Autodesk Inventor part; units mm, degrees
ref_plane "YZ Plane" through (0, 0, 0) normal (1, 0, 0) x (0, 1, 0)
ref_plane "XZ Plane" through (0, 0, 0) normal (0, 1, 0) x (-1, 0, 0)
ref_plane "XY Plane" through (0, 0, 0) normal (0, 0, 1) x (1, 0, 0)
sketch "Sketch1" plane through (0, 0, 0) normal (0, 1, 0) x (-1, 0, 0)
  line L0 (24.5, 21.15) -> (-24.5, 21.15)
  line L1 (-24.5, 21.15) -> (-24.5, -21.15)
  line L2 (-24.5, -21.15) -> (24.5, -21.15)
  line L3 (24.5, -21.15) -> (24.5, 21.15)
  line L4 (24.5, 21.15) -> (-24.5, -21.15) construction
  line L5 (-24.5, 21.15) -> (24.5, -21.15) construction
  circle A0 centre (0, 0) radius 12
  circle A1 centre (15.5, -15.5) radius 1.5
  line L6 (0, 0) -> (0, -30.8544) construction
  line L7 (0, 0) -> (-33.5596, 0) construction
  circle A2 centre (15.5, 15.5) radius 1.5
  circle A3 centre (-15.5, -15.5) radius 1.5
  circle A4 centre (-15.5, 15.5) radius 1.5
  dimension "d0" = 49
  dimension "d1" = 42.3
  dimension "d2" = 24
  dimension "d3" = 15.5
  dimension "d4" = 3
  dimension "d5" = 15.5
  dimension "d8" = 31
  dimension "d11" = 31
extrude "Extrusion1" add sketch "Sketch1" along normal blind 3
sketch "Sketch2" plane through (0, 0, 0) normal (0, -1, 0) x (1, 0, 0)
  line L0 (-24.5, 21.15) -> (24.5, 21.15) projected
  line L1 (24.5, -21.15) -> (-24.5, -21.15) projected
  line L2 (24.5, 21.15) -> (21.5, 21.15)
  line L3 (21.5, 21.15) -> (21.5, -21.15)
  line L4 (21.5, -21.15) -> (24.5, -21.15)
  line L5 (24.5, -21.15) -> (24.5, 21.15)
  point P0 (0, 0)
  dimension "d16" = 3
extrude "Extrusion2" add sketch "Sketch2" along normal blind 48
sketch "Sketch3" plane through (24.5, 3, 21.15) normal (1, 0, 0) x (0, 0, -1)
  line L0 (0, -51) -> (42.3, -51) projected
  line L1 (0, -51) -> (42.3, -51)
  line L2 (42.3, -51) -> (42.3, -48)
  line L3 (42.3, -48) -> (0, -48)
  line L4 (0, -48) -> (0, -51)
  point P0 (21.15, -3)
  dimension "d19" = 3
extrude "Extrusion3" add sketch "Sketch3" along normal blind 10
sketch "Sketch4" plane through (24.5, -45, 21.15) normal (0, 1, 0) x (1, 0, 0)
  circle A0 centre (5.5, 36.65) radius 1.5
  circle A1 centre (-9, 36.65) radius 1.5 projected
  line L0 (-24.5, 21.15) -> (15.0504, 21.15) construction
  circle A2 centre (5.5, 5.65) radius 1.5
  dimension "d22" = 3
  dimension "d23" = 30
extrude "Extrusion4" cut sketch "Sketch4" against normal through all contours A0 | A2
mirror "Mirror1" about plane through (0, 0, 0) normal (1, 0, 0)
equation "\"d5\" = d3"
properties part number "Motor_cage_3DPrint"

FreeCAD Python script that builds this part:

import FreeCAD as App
import Part
import Sketcher
Q = App.Units.Quantity

doc = App.newDocument("Part")
params = doc.addObject("Spreadsheet::Sheet", "Params")
for row, (alias, value) in enumerate([
    ("sketch1_diameter", "3 mm"),
    ("sketch1_diameter2", "24 mm"),
    ("sketch1_width", "49 mm"),
    ("sketch1_height", "42.3 mm"),
    ("pad1_length", "3 mm"),
    ("sketch2_width", "3 mm"),
    ("sketch2_height", "42.3 mm"),
    ("pad2_length", "48 mm"),
    ("sketch3_width", "3 mm"),
    ("sketch3_height", "42.3 mm"),
    ("pad3_length", "10 mm"),
    ("sketch4_diameter", "3 mm"),
], start=1):
    params.set(f"A{row}", alias)
    params.set(f"B{row}", "=" + value)
    params.setAlias(f"B{row}", alias)

body = doc.addObject("PartDesign::Body", "Body")

# Sketch on XZ plane
sketch1 = body.newObject("Sketcher::SketchObject", "Sketch")
sketch1.AttachmentSupport = (doc.getObject("XZ_Plane"), [""])
sketch1.MapMode = "FlatFace"
sketch1.addGeometry([
    Part.LineSegment(App.Vector(-24.5, -21.15, 0), App.Vector(-24.5, 21.15, 0)),  # 0
    Part.LineSegment(App.Vector(-24.5, 21.15, 0), App.Vector(24.5, 21.15, 0)),  # 1
    Part.LineSegment(App.Vector(24.5, 21.15, 0), App.Vector(24.5, -21.15, 0)),  # 2
    Part.LineSegment(App.Vector(24.5, -21.15, 0), App.Vector(-24.5, -21.15, 0)),  # 3
    Part.Circle(App.Vector(15.5, -15.5, 0), App.Vector(0, 0, 1), 1.5),  # 4
    Part.Circle(App.Vector(-15.5, -15.5, 0), App.Vector(0, 0, 1), 1.5),  # 5
    Part.Circle(App.Vector(0, 0, 0), App.Vector(0, 0, 1), 12),  # 6
    Part.Circle(App.Vector(15.5, 15.5, 0), App.Vector(0, 0, 1), 1.5),  # 7
    Part.Circle(App.Vector(-15.5, 15.5, 0), App.Vector(0, 0, 1), 1.5),  # 8
], False)
sketch1.addConstraint([
    Sketcher.Constraint("Coincident", 0, 2, 1, 1),
    Sketcher.Constraint("Coincident", 1, 2, 2, 1),
    Sketcher.Constraint("Coincident", 2, 2, 3, 1),
    Sketcher.Constraint("Coincident", 3, 2, 0, 1),
    Sketcher.Constraint("Vertical", 0),
    Sketcher.Constraint("Horizontal", 1),
    Sketcher.Constraint("Vertical", 2),
    Sketcher.Constraint("Horizontal", 3),
    Sketcher.Constraint("Coincident", 6, 3, -1, 1),
    Sketcher.Constraint("Equal", 4, 5),
    Sketcher.Constraint("Equal", 5, 7),
    Sketcher.Constraint("Equal", 7, 8),
    Sketcher.Constraint("Symmetric", 5, 3, 7, 3, -1, 1),
    Sketcher.Constraint("Symmetric", 4, 3, 8, 3, -1, 1),
    Sketcher.Constraint("Symmetric", 0, 2, 2, 2, -1, 1),
    Sketcher.Constraint("Symmetric", 4, 3, 5, 3, -2),
    Sketcher.Constraint("Diameter", 4, Q("3 mm")),
    Sketcher.Constraint("Diameter", 6, Q("24 mm")),
    Sketcher.Constraint("DistanceX", 1, 1, 1, 2, Q("49 mm")),
    Sketcher.Constraint("DistanceY", 0, 1, 0, 2, Q("42.3 mm")),
    Sketcher.Constraint("DistanceX", 5, 3, 4, 3, Q("31 mm")),
    Sketcher.Constraint("DistanceY", 4, 3, 7, 3, Q("31 mm")),
])
sketch1.setExpression("Constraints[16]", "Params.sketch1_diameter")
sketch1.setExpression("Constraints[17]", "Params.sketch1_diameter2")
sketch1.setExpression("Constraints[18]", "Params.sketch1_width")
sketch1.setExpression("Constraints[19]", "Params.sketch1_height")
pad1 = body.newObject("PartDesign::Pad", "Pad")
pad1.Profile = sketch1
pad1.setExpression("Length", "Params.pad1_length")
pad1.Reversed = True

# Sketch on XZ plane
sketch2 = body.newObject("Sketcher::SketchObject", "Sketch001")
sketch2.AttachmentSupport = (doc.getObject("XZ_Plane"), [""])
sketch2.MapMode = "FlatFace"
sketch2.addGeometry([
    Part.LineSegment(App.Vector(24.5, 21.15, 0), App.Vector(21.5, 21.15, 0)),
    Part.LineSegment(App.Vector(21.5, 21.15, 0), App.Vector(21.5, -21.15, 0)),
    Part.LineSegment(App.Vector(21.5, -21.15, 0), App.Vector(24.5, -21.15, 0)),
    Part.LineSegment(App.Vector(24.5, -21.15, 0), App.Vector(24.5, 21.15, 0)),
], False)
sketch2.addConstraint([
    Sketcher.Constraint("Coincident", 0, 2, 1, 1),
    Sketcher.Constraint("Coincident", 1, 2, 2, 1),
    Sketcher.Constraint("Coincident", 2, 2, 3, 1),
    Sketcher.Constraint("Coincident", 3, 2, 0, 1),
    Sketcher.Constraint("Horizontal", 0),
    Sketcher.Constraint("Vertical", 1),
    Sketcher.Constraint("Horizontal", 2),
    Sketcher.Constraint("Vertical", 3),
    Sketcher.Constraint("DistanceX", 0, 2, 0, 1, Q("3 mm")),
    Sketcher.Constraint("DistanceY", 1, 2, 1, 1, Q("42.3 mm")),
    Sketcher.Constraint("DistanceX", -1, 1, 0, 2, Q("21.5 mm")),
    Sketcher.Constraint("DistanceY", -1, 1, 0, 2, Q("21.15 mm")),
])
sketch2.setExpression("Constraints[8]", "Params.sketch2_width")
sketch2.setExpression("Constraints[9]", "Params.sketch2_height")
pad2 = body.newObject("PartDesign::Pad", "Pad001")
pad2.Profile = sketch2
pad2.setExpression("Length", "Params.pad2_length")

# Sketch on YZ plane
sketch3 = body.newObject("Sketcher::SketchObject", "Sketch002")
sketch3.AttachmentSupport = (doc.getObject("YZ_Plane"), [""])
sketch3.MapMode = "FlatFace"
sketch3.AttachmentOffset = App.Placement(App.Vector(0, 0, 24.5), App.Rotation())
sketch3.addGeometry([
    Part.LineSegment(App.Vector(-45, 21.15, 0), App.Vector(-48, 21.15, 0)),
    Part.LineSegment(App.Vector(-48, 21.15, 0), App.Vector(-48, -21.15, 0)),
    Part.LineSegment(App.Vector(-48, -21.15, 0), App.Vector(-45, -21.15, 0)),
    Part.LineSegment(App.Vector(-45, -21.15, 0), App.Vector(-45, 21.15, 0)),
], False)
sketch3.addConstraint([
    Sketcher.Constraint("Coincident", 0, 2, 1, 1),
    Sketcher.Constraint("Coincident", 1, 2, 2, 1),
    Sketcher.Constraint("Coincident", 2, 2, 3, 1),
    Sketcher.Constraint("Coincident", 3, 2, 0, 1),
    Sketcher.Constraint("Horizontal", 0),
    Sketcher.Constraint("Vertical", 1),
    Sketcher.Constraint("Horizontal", 2),
    Sketcher.Constraint("Vertical", 3),
    Sketcher.Constraint("DistanceX", 0, 2, 0, 1, Q("3 mm")),
    Sketcher.Constraint("DistanceY", 1, 2, 1, 1, Q("42.3 mm")),
    Sketcher.Constraint("DistanceX", 0, 2, -1, 1, Q("48 mm")),
    Sketcher.Constraint("DistanceY", -1, 1, 0, 2, Q("21.15 mm")),
])
sketch3.setExpression("Constraints[8]", "Params.sketch3_width")
sketch3.setExpression("Constraints[9]", "Params.sketch3_height")
pad3 = body.newObject("PartDesign::Pad", "Pad002")
pad3.Profile = sketch3
pad3.setExpression("Length", "Params.pad3_length")

# Sketch on XZ plane
sketch4 = body.newObject("Sketcher::SketchObject", "Sketch003")
sketch4.AttachmentSupport = (doc.getObject("XZ_Plane"), [""])
sketch4.MapMode = "FlatFace"
sketch4.AttachmentOffset = App.Placement(App.Vector(0, 0, 45), App.Rotation())
sketch4.addGeometry([
    Part.Circle(App.Vector(30, -15.5, 0), App.Vector(0, 0, 1), 1.5),
    Part.Circle(App.Vector(30, 15.5, 0), App.Vector(0, 0, 1), 1.5),
], False)
sketch4.addConstraint([
    Sketcher.Constraint("Equal", 0, 1),
    Sketcher.Constraint("Symmetric", 0, 3, 1, 3, -1),
    Sketcher.Constraint("Diameter", 0, Q("3 mm")),
    Sketcher.Constraint("DistanceX", -1, 1, 0, 3, Q("30 mm")),
    Sketcher.Constraint("DistanceY", 0, 3, 1, 3, Q("31 mm")),
])
sketch4.setExpression("Constraints[2]", "Params.sketch4_diameter")
pocket1 = body.newObject("PartDesign::Pocket", "Pocket")
pocket1.Profile = sketch4
pocket1.Type = "ThroughAll"
pocket1.Reversed = True
doc.recompute()

mirrored = body.newObject("PartDesign::Mirrored", "Mirrored")
mirrored.TransformMode = "Transform body"
mirrored.MirrorPlane = (doc.getObject("YZ_Plane"), [""])
body.Tip = mirrored

doc.recompute()
